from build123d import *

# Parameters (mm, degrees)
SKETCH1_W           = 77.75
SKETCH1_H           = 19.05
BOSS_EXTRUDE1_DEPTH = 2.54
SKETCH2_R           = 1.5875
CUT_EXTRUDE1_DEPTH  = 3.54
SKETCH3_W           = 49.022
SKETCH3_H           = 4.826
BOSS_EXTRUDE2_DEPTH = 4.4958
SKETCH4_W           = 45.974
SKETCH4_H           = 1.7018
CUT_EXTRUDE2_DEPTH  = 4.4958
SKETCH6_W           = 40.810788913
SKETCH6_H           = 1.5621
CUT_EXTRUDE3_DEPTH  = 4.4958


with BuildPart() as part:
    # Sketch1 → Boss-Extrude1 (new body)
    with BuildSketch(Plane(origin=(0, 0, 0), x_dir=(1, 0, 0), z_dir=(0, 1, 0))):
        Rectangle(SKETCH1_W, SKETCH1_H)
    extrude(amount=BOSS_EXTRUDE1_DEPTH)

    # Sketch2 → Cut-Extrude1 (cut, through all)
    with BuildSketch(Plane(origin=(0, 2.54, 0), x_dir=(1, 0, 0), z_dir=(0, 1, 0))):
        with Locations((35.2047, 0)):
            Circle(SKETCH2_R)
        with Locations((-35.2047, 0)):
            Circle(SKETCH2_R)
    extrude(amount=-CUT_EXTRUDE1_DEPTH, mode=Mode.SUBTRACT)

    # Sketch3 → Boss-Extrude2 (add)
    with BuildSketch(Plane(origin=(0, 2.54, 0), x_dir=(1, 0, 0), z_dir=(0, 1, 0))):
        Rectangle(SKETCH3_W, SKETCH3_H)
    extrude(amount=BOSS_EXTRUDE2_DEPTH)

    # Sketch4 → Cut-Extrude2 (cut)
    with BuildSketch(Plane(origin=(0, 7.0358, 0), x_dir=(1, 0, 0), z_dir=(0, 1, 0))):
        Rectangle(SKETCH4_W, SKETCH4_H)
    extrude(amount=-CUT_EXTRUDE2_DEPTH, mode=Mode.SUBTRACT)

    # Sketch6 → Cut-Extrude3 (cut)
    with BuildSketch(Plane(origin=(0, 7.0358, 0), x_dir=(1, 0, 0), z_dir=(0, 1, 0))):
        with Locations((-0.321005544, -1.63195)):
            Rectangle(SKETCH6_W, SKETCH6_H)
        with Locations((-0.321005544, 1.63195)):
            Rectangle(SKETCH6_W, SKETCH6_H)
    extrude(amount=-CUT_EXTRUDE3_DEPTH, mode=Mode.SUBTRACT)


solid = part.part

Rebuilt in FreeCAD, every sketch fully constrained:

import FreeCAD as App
import Part
import Sketcher
from FreeCAD import Vector
Q = App.Units.Quantity

doc = App.newDocument("Part")
params = doc.addObject("Spreadsheet::Sheet", "Params")
for row, (alias, value) in enumerate([
    ("sketch1_height", "0.75 in"),
    ("pad1_length", "0.1 in"),
    ("sketch2_diameter", "0.125 in"),
    ("sketch3_width", "1.93 in"),
    ("sketch3_height", "0.19 in"),
    ("pad2_length", "0.177 in"),
    ("sketch4_width", "1.81 in"),
    ("sketch4_height", "0.067 in"),
    ("pocket2_length", "0.177 in"),
    ("pocket3_length", "0.177 in"),
], start=1):
    params.set(f"A{row}", alias)
    params.set(f"B{row}", "=" + value)
    params.setAlias(f"B{row}", alias)

body = doc.addObject("PartDesign::Body", "Body")

sketch1 = body.newObject("Sketcher::SketchObject", "Sketch")
sketch1.AttachmentSupport = (doc.getObject("XZ_Plane"), [""])
sketch1.MapMode = "FlatFace"
sketch1.addGeometry(Part.LineSegment(Vector(-39, -10, 0), Vector(-39, 10, 0)), False)
sketch1.addGeometry(Part.LineSegment(Vector(-39, 10, 0), Vector(39, 10, 0)), False)
sketch1.addGeometry(Part.LineSegment(Vector(39, 10, 0), Vector(39, -10, 0)), False)
sketch1.addGeometry(Part.LineSegment(Vector(39, -10, 0), Vector(-39, -10, 0)), False)
sketch1.addConstraint(Sketcher.Constraint("Coincident", 0, 2, 1, 1))
sketch1.addConstraint(Sketcher.Constraint("Coincident", 1, 2, 2, 1))
sketch1.addConstraint(Sketcher.Constraint("Coincident", 2, 2, 3, 1))
sketch1.addConstraint(Sketcher.Constraint("Coincident", 3, 2, 0, 1))
sketch1.addConstraint(Sketcher.Constraint("Vertical", 0))
sketch1.addConstraint(Sketcher.Constraint("Horizontal", 1))
sketch1.addConstraint(Sketcher.Constraint("Vertical", 2))
sketch1.addConstraint(Sketcher.Constraint("Horizontal", 3))
sketch1.addConstraint(Sketcher.Constraint("Symmetric", 0, 2, 2, 2, -1, 1))
sketch1.addConstraint(Sketcher.Constraint("DistanceY", 0, 1, 0, 2, Q("0.75 in")))
sketch1.addConstraint(Sketcher.Constraint("DistanceX", 1, 1, 1, 2, Q("77.75 mm")))
sketch1.setExpression("Constraints[9]", "Params.sketch1_height")
pad1 = body.newObject("PartDesign::Pad", "Pad")
pad1.Profile = sketch1
pad1.setExpression("Length", "Params.pad1_length")
pad1.Reversed = True

sketch2 = body.newObject("Sketcher::SketchObject", "Sketch001")
sketch2.AttachmentSupport = (doc.getObject("XZ_Plane"), [""])
sketch2.MapMode = "FlatFace"
sketch2.AttachmentOffset = App.Placement(Vector(0, 0, -0.1 * 25.4), App.Rotation())
sketch2.addGeometry(Part.Circle(Vector(35.2, 0, 0), Vector(0, 0, 1), 1.6), False)
sketch2.addGeometry(Part.Circle(Vector(-35.2, 0, 0), Vector(0, 0, 1), 1.6), False)
sketch2.addConstraint(Sketcher.Constraint("Equal", 0, 1))
sketch2.addConstraint(Sketcher.Constraint("Symmetric", 0, 3, 1, 3, -1, 1))
sketch2.addConstraint(Sketcher.Constraint("PointOnObject", 0, 3, -1))
sketch2.addConstraint(Sketcher.Constraint("Diameter", 0, Q("0.125 in")))
sketch2.addConstraint(Sketcher.Constraint("DistanceX", -1, 1, 0, 3, Q("35.2047 mm")))
sketch2.setExpression("Constraints[3]", "Params.sketch2_diameter")
pocket1 = body.newObject("PartDesign::Pocket", "Pocket")
pocket1.Profile = sketch2
pocket1.Type = "ThroughAll"
pocket1.Reversed = True

sketch3 = body.newObject("Sketcher::SketchObject", "Sketch002")
sketch3.AttachmentSupport = (doc.getObject("XZ_Plane"), [""])
sketch3.MapMode = "FlatFace"
sketch3.AttachmentOffset = App.Placement(Vector(0, 0, -0.1 * 25.4), App.Rotation())
sketch3.addGeometry(Part.LineSegment(Vector(-24.5, -2.4, 0), Vector(-24.5, 2.4, 0)), False)
sketch3.addGeometry(Part.LineSegment(Vector(-24.5, 2.4, 0), Vector(24.5, 2.4, 0)), False)
sketch3.addGeometry(Part.LineSegment(Vector(24.5, 2.4, 0), Vector(24.5, -2.4, 0)), False)
sketch3.addGeometry(Part.LineSegment(Vector(24.5, -2.4, 0), Vector(-24.5, -2.4, 0)), False)
sketch3.addConstraint(Sketcher.Constraint("Coincident", 0, 2, 1, 1))
sketch3.addConstraint(Sketcher.Constraint("Coincident", 1, 2, 2, 1))
sketch3.addConstraint(Sketcher.Constraint("Coincident", 2, 2, 3, 1))
sketch3.addConstraint(Sketcher.Constraint("Coincident", 3, 2, 0, 1))
sketch3.addConstraint(Sketcher.Constraint("Vertical", 0))
sketch3.addConstraint(Sketcher.Constraint("Horizontal", 1))
sketch3.addConstraint(Sketcher.Constraint("Vertical", 2))
sketch3.addConstraint(Sketcher.Constraint("Horizontal", 3))
sketch3.addConstraint(Sketcher.Constraint("Symmetric", 0, 2, 2, 2, -1, 1))
sketch3.addConstraint(Sketcher.Constraint("DistanceX", 1, 1, 1, 2, Q("1.93 in")))
sketch3.addConstraint(Sketcher.Constraint("DistanceY", 0, 1, 0, 2, Q("0.19 in")))
sketch3.setExpression("Constraints[9]", "Params.sketch3_width")
sketch3.setExpression("Constraints[10]", "Params.sketch3_height")
pad2 = body.newObject("PartDesign::Pad", "Pad001")
pad2.Profile = sketch3
pad2.setExpression("Length", "Params.pad2_length")
pad2.Reversed = True

sketch4 = body.newObject("Sketcher::SketchObject", "Sketch003")
sketch4.AttachmentSupport = (doc.getObject("XZ_Plane"), [""])
sketch4.MapMode = "FlatFace"
sketch4.AttachmentOffset = App.Placement(Vector(0, 0, -0.277 * 25.4), App.Rotation())
sketch4.addGeometry(Part.LineSegment(Vector(-23, -0.9, 0), Vector(-23, 0.9, 0)), False)
sketch4.addGeometry(Part.LineSegment(Vector(-23, 0.9, 0), Vector(23, 0.9, 0)), False)
sketch4.addGeometry(Part.LineSegment(Vector(23, 0.9, 0), Vector(23, -0.9, 0)), False)
sketch4.addGeometry(Part.LineSegment(Vector(23, -0.9, 0), Vector(-23, -0.9, 0)), False)
sketch4.addConstraint(Sketcher.Constraint("Coincident", 0, 2, 1, 1))
sketch4.addConstraint(Sketcher.Constraint("Coincident", 1, 2, 2, 1))
sketch4.addConstraint(Sketcher.Constraint("Coincident", 2, 2, 3, 1))
sketch4.addConstraint(Sketcher.Constraint("Coincident", 3, 2, 0, 1))
sketch4.addConstraint(Sketcher.Constraint("Vertical", 0))
sketch4.addConstraint(Sketcher.Constraint("Horizontal", 1))
sketch4.addConstraint(Sketcher.Constraint("Vertical", 2))
sketch4.addConstraint(Sketcher.Constraint("Horizontal", 3))
sketch4.addConstraint(Sketcher.Constraint("Symmetric", 0, 2, 2, 2, -1, 1))
sketch4.addConstraint(Sketcher.Constraint("DistanceX", 1, 1, 1, 2, Q("1.81 in")))
sketch4.addConstraint(Sketcher.Constraint("DistanceY", 0, 1, 0, 2, Q("0.067 in")))
sketch4.setExpression("Constraints[9]", "Params.sketch4_width")
sketch4.setExpression("Constraints[10]", "Params.sketch4_height")
pocket2 = body.newObject("PartDesign::Pocket", "Pocket001")
pocket2.Profile = sketch4
pocket2.setExpression("Length", "Params.pocket2_length")
pocket2.Reversed = True

sketch5 = body.newObject("Sketcher::SketchObject", "Sketch004")
sketch5.AttachmentSupport = (doc.getObject("XZ_Plane"), [""])
sketch5.MapMode = "FlatFace"
sketch5.AttachmentOffset = App.Placement(Vector(0, 0, -0.277 * 25.4), App.Rotation())
sketch5.addGeometry(Part.LineSegment(Vector(-20.7, 0.9, 0), Vector(-20.7, 2.4, 0)), False)
sketch5.addGeometry(Part.LineSegment(Vector(-20.7, 2.4, 0), Vector(20.1, 2.4, 0)), False)
sketch5.addGeometry(Part.LineSegment(Vector(20.1, 2.4, 0), Vector(20.1, 0.9, 0)), False)
sketch5.addGeometry(Part.LineSegment(Vector(20.1, 0.9, 0), Vector(-20.7, 0.9, 0)), False)
sketch5.addGeometry(Part.LineSegment(Vector(-20.7, -2.4, 0), Vector(-20.7, -0.9, 0)), False)
sketch5.addGeometry(Part.LineSegment(Vector(-20.7, -0.9, 0), Vector(20.1, -0.9, 0)), False)
sketch5.addGeometry(Part.LineSegment(Vector(20.1, -0.9, 0), Vector(20.1, -2.4, 0)), False)
sketch5.addGeometry(Part.LineSegment(Vector(20.1, -2.4, 0), Vector(-20.7, -2.4, 0)), False)
sketch5.addConstraint(Sketcher.Constraint("Coincident", 0, 2, 1, 1))
sketch5.addConstraint(Sketcher.Constraint("Coincident", 1, 2, 2, 1))
sketch5.addConstraint(Sketcher.Constraint("Coincident", 2, 2, 3, 1))
sketch5.addConstraint(Sketcher.Constraint("Coincident", 3, 2, 0, 1))
sketch5.addConstraint(Sketcher.Constraint("Coincident", 4, 2, 5, 1))
sketch5.addConstraint(Sketcher.Constraint("Coincident", 5, 2, 6, 1))
sketch5.addConstraint(Sketcher.Constraint("Coincident", 6, 2, 7, 1))
sketch5.addConstraint(Sketcher.Constraint("Coincident", 7, 2, 4, 1))
sketch5.addConstraint(Sketcher.Constraint("Vertical", 0))
sketch5.addConstraint(Sketcher.Constraint("Horizontal", 1))
sketch5.addConstraint(Sketcher.Constraint("Vertical", 2))
sketch5.addConstraint(Sketcher.Constraint("Horizontal", 3))
sketch5.addConstraint(Sketcher.Constraint("Vertical", 4))
sketch5.addConstraint(Sketcher.Constraint("Horizontal", 5))
sketch5.addConstraint(Sketcher.Constraint("Vertical", 6))
sketch5.addConstraint(Sketcher.Constraint("Horizontal", 7))
sketch5.addConstraint(Sketcher.Constraint("Symmetric", 3, 2, 4, 2, -1))
sketch5.addConstraint(Sketcher.Constraint("Symmetric", 1, 2, 6, 2, -1))
sketch5.addConstraint(Sketcher.Constraint("DistanceY", 6, 2, 1, 2, Q("0.19 in")))
sketch5.addConstraint(Sketcher.Constraint("DistanceY", 0, 1, 0, 2, Q("0.0615 in")))
sketch5.addConstraint(Sketcher.Constraint("DistanceX", 0, 2, -1, 1, Q("0.816 in")))
sketch5.addConstraint(Sketcher.Constraint("DistanceX", 1, 1, 1, 2, Q("40.810789 mm")))
pocket3 = body.newObject("PartDesign::Pocket", "Pocket002")
pocket3.Profile = sketch5
pocket3.setExpression("Length", "Params.pocket3_length")
pocket3.Reversed = True

doc.recompute()
